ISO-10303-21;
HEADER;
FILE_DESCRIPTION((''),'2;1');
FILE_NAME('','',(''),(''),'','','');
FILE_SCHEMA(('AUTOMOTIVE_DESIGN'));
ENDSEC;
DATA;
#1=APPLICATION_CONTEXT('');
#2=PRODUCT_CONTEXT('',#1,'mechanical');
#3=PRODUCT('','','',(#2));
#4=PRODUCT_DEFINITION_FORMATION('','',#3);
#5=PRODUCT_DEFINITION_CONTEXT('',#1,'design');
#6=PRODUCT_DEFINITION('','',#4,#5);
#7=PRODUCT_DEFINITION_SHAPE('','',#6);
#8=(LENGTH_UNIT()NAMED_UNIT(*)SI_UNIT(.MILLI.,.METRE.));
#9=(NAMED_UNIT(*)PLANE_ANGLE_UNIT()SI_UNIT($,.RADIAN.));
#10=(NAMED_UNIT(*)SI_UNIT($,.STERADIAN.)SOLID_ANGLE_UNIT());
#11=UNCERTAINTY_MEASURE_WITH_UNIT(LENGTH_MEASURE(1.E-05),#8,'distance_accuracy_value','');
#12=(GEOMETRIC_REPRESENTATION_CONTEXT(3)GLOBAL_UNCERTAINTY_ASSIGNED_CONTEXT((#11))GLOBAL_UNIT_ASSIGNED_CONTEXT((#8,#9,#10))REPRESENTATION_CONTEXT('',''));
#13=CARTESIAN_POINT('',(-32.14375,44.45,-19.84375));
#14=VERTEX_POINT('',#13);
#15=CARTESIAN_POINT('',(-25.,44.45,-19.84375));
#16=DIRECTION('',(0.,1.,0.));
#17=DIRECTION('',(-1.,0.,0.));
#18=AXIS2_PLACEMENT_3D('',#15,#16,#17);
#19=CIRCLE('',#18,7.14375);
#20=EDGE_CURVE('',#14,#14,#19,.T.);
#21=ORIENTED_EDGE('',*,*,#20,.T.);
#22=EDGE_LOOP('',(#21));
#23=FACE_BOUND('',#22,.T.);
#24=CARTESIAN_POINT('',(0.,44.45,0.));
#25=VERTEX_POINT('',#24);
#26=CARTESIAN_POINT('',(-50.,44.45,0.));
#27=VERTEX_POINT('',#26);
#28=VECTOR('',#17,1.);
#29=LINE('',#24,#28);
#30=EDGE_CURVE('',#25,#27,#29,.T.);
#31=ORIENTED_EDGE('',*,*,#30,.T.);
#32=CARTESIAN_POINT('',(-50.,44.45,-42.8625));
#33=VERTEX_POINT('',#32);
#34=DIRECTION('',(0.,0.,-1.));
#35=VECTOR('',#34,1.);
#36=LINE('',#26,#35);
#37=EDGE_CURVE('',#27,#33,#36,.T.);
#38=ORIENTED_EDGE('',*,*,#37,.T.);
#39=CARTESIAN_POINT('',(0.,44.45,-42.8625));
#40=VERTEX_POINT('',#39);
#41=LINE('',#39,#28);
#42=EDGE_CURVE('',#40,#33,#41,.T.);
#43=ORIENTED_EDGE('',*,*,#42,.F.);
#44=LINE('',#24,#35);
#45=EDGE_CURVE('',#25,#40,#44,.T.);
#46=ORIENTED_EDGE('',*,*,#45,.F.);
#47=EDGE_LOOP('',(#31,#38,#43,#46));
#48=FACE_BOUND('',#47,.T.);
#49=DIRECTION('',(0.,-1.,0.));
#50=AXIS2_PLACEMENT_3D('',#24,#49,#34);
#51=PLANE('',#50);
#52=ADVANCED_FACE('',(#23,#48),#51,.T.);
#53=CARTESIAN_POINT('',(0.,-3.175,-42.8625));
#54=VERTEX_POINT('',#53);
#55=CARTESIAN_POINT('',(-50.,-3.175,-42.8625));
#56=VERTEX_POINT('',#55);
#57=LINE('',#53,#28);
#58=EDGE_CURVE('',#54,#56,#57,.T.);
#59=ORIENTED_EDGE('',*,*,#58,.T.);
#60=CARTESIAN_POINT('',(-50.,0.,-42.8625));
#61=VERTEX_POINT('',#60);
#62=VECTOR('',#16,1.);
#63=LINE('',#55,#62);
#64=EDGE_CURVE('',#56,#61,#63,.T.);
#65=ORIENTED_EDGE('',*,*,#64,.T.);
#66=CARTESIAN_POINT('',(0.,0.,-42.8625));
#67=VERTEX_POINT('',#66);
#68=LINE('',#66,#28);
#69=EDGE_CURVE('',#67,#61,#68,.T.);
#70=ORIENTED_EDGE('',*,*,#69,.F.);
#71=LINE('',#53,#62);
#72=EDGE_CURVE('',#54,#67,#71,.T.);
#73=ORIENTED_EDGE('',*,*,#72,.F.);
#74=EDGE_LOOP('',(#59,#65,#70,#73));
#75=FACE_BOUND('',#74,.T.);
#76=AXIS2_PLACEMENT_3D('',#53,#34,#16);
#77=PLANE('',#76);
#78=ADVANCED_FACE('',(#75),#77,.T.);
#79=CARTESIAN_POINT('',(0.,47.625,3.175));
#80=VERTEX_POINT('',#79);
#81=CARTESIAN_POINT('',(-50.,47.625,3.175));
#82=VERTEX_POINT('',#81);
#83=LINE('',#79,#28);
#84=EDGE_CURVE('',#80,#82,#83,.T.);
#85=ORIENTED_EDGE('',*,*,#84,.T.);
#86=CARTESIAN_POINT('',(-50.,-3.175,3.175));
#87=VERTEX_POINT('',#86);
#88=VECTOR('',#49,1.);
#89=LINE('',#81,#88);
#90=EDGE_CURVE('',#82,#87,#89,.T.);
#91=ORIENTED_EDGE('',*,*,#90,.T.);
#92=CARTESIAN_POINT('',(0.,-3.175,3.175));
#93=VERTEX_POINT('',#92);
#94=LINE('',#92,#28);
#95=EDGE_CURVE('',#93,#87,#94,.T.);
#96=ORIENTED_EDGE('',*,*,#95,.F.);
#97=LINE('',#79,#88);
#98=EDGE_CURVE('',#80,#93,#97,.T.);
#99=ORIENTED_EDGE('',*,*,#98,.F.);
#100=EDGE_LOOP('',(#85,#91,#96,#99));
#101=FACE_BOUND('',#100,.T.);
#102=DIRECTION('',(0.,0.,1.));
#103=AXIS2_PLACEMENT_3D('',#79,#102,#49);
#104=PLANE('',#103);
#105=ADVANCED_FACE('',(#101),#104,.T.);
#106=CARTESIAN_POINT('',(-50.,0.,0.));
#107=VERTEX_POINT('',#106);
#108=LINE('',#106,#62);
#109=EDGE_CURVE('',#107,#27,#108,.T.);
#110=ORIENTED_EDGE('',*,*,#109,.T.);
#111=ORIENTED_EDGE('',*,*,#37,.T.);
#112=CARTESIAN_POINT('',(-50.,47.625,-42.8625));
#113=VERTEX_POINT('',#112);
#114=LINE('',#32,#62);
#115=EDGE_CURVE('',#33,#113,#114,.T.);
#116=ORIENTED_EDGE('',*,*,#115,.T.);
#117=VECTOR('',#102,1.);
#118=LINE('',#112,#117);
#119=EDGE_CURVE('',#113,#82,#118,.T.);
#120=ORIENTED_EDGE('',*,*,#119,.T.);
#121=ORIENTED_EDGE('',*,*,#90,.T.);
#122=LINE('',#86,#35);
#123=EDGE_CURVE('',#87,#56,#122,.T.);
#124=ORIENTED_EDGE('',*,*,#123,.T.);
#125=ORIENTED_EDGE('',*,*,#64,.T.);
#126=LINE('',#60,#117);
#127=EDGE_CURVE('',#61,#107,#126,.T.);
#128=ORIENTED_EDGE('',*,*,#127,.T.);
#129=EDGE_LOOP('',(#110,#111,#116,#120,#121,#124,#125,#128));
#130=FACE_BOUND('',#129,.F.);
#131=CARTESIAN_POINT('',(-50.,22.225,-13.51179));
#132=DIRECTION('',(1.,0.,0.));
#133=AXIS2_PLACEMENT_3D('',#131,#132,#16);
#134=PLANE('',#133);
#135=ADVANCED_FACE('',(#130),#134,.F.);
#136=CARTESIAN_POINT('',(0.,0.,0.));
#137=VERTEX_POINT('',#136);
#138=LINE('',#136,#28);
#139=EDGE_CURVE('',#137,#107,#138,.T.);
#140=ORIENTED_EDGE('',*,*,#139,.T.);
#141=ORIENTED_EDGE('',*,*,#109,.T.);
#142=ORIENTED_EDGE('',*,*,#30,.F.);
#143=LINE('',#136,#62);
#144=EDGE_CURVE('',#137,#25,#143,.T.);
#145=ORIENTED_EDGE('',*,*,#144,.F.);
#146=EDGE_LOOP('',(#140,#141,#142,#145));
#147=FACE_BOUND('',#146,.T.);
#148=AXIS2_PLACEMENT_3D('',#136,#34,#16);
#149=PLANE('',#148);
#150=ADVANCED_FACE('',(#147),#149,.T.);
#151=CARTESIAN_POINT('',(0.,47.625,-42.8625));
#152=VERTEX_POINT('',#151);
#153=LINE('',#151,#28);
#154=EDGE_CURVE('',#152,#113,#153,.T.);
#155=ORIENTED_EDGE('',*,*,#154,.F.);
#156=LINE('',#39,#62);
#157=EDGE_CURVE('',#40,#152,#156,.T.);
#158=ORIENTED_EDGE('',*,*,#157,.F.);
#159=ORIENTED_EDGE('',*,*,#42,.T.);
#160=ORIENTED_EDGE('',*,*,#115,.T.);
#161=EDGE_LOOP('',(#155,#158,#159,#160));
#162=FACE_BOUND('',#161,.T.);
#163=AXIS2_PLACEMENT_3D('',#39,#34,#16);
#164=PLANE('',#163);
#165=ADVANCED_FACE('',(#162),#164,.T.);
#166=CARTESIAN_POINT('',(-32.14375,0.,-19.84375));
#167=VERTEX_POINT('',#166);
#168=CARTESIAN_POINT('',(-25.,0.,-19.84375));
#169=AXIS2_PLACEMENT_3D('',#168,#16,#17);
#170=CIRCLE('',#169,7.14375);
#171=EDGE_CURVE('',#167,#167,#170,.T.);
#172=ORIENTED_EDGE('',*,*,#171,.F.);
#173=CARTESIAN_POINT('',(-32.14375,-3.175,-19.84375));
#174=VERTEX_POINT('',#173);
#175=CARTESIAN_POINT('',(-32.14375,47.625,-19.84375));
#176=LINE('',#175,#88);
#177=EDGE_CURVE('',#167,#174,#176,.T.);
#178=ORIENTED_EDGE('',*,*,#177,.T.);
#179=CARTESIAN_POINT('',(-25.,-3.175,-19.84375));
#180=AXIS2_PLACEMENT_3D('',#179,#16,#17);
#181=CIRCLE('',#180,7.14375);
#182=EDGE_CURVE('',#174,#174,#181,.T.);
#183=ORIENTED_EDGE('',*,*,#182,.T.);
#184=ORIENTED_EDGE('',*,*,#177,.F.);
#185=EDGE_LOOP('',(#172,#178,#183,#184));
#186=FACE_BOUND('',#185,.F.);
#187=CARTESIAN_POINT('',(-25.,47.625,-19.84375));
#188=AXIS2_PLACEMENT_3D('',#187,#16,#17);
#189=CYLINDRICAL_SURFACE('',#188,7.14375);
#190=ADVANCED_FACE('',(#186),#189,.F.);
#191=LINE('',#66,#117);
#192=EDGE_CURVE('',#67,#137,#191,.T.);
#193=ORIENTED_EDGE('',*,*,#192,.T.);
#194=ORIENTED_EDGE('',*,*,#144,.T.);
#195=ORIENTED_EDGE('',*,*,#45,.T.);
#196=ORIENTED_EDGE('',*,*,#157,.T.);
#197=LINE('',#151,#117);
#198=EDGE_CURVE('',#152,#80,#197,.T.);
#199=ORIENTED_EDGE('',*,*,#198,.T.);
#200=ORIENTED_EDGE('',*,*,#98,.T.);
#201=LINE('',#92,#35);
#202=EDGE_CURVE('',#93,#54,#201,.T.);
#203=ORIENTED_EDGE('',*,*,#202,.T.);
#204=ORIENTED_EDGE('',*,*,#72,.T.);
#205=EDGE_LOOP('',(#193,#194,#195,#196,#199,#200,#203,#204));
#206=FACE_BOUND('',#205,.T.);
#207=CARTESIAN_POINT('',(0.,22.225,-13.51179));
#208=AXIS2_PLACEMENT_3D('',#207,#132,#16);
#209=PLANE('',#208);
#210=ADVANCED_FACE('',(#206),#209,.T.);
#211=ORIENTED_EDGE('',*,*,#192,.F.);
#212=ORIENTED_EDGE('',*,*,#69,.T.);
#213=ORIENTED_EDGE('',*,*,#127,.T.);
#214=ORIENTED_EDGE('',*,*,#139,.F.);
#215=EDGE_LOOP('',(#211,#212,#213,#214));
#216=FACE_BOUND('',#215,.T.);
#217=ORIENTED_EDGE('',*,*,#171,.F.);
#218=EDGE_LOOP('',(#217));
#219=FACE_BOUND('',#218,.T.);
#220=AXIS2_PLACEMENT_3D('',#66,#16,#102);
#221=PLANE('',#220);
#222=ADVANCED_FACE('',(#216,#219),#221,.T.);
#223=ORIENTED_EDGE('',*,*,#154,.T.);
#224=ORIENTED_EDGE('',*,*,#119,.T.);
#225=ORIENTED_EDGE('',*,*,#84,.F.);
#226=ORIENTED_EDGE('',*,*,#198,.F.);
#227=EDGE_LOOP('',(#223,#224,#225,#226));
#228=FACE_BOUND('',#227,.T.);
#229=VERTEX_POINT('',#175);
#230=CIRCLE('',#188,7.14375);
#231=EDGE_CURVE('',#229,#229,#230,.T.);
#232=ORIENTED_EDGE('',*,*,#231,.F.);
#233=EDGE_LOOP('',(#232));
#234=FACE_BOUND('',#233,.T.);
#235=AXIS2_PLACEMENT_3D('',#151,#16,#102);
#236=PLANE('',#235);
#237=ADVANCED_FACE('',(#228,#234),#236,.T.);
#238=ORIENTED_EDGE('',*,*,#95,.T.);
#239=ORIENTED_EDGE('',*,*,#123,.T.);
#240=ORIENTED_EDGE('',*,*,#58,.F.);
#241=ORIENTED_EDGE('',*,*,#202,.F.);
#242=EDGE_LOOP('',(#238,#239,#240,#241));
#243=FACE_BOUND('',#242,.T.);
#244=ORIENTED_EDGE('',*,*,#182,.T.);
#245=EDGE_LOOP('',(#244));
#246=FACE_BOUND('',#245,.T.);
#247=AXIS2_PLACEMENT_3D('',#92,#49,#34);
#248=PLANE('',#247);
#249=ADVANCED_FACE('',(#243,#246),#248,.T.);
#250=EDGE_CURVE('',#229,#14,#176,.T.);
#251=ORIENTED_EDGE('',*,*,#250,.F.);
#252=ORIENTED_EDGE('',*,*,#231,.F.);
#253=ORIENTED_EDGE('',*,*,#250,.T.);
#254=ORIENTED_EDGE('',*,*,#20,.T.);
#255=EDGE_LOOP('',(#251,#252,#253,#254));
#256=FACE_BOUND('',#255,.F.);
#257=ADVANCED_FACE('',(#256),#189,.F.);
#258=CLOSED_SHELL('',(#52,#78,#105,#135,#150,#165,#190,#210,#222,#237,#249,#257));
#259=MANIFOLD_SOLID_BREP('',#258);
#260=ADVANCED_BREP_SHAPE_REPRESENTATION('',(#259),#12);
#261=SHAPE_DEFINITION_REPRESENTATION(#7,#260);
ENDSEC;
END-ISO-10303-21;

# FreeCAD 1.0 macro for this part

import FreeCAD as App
import Part
import Sketcher

V = App.Vector
Q = App.Units.Quantity


def add_polygon(sketch, points):
    """Adds a closed chain of lines whose ends are joined by coincident constraints."""
    first, n = sketch.GeometryCount, len(points)
    for a, b in zip(points, points[1:] + points[:1]):
        sketch.addGeometry(Part.LineSegment(App.Vector(*a, 0), App.Vector(*b, 0)), False)
    for i in range(n):
        sketch.addConstraint(Sketcher.Constraint("Coincident", first + i, 2, first + (i + 1) % n, 1))

doc = App.newDocument("Part")
params = doc.addObject("Spreadsheet::Sheet", "Params")
for row, (alias, value) in enumerate([
    ("sketch1_width", "2 in"),
    ("sketch1_width2", "1.75 in"),
    ("sketch1_height", "1.6875 in"),
    ("sketch1_height2", "1.8125 in"),
    ("pad1_length", "50 mm"),
    ("sketch2_diameter", "0.5625 in"),
], start=1):
    params.set(f"A{row}", alias)
    params.set(f"B{row}", "=" + value)
    params.setAlias(f"B{row}", alias)

body = doc.addObject("PartDesign::Body", "Body")

# Sketch on YZ plane
sketch1 = body.newObject("Sketcher::SketchObject", "Sketch")
sketch1.AttachmentSupport = (doc.getObject("YZ_Plane"), [""])
sketch1.MapMode = "FlatFace"
add_polygon(sketch1, [(0, -42.9), (0, 0), (44.5, 0), (44.5, -42.9), (47.6, -42.9), (47.6, 3.2), (-3.2, 3.2), (-3.2, -42.9)])  # lines 0-7
sketch1.addConstraint([
    Sketcher.Constraint("Vertical", 0),
    Sketcher.Constraint("Horizontal", 1),
    Sketcher.Constraint("Vertical", 2),
    Sketcher.Constraint("Horizontal", 3),
    Sketcher.Constraint("Vertical", 4),
    Sketcher.Constraint("Horizontal", 5),
    Sketcher.Constraint("Vertical", 6),
    Sketcher.Constraint("Horizontal", 7),
    Sketcher.Constraint("Coincident", 0, 2, -1, 1),
    Sketcher.Constraint("Horizontal", 3, 2, 6, 2),
    Sketcher.Constraint("Equal", 3, 7),
    Sketcher.Constraint("DistanceX", 5, 2, 5, 1, Q("2 in")),
    Sketcher.Constraint("DistanceX", 1, 1, 1, 2, Q("1.75 in")),
    Sketcher.Constraint("DistanceY", 0, 1, 0, 2, Q("1.6875 in")),
    Sketcher.Constraint("DistanceY", 4, 1, 4, 2, Q("1.8125 in")),
])
sketch1.setExpression("Constraints[19]", "Params.sketch1_width")
sketch1.setExpression("Constraints[20]", "Params.sketch1_width2")
sketch1.setExpression("Constraints[21]", "Params.sketch1_height")
sketch1.setExpression("Constraints[22]", "Params.sketch1_height2")
pad1 = body.newObject("PartDesign::Pad", "Pad")
pad1.Profile = sketch1
pad1.setExpression("Length", "Params.pad1_length")
pad1.Reversed = True

# Sketch on XZ plane
sketch2 = body.newObject("Sketcher::SketchObject", "Sketch001")
sketch2.AttachmentSupport = (doc.getObject("XZ_Plane"), [""])
sketch2.MapMode = "FlatFace"
sketch2.AttachmentOffset = App.Placement(V(0, 0, -1.875 * 25.4), App.Rotation())
sketch2.addGeometry(Part.Circle(V(-25, -20, 0), V(0, 0, 1), 7), False)
sketch2.addConstraint([
    Sketcher.Constraint("Diameter", 0, Q("0.5625 in")),
    Sketcher.Constraint("DistanceY", 0, 3, -1, 1, Q("0.78125 in")),
    Sketcher.Constraint("DistanceX", 0, 3, -1, 1, 25.0),
])
sketch2.setExpression("Constraints[0]", "Params.sketch2_diameter")
pocket1 = body.newObject("PartDesign::Pocket", "Pocket")
pocket1.Profile = sketch2
pocket1.Type = "ThroughAll"
pocket1.Reversed = True

doc.recompute()
